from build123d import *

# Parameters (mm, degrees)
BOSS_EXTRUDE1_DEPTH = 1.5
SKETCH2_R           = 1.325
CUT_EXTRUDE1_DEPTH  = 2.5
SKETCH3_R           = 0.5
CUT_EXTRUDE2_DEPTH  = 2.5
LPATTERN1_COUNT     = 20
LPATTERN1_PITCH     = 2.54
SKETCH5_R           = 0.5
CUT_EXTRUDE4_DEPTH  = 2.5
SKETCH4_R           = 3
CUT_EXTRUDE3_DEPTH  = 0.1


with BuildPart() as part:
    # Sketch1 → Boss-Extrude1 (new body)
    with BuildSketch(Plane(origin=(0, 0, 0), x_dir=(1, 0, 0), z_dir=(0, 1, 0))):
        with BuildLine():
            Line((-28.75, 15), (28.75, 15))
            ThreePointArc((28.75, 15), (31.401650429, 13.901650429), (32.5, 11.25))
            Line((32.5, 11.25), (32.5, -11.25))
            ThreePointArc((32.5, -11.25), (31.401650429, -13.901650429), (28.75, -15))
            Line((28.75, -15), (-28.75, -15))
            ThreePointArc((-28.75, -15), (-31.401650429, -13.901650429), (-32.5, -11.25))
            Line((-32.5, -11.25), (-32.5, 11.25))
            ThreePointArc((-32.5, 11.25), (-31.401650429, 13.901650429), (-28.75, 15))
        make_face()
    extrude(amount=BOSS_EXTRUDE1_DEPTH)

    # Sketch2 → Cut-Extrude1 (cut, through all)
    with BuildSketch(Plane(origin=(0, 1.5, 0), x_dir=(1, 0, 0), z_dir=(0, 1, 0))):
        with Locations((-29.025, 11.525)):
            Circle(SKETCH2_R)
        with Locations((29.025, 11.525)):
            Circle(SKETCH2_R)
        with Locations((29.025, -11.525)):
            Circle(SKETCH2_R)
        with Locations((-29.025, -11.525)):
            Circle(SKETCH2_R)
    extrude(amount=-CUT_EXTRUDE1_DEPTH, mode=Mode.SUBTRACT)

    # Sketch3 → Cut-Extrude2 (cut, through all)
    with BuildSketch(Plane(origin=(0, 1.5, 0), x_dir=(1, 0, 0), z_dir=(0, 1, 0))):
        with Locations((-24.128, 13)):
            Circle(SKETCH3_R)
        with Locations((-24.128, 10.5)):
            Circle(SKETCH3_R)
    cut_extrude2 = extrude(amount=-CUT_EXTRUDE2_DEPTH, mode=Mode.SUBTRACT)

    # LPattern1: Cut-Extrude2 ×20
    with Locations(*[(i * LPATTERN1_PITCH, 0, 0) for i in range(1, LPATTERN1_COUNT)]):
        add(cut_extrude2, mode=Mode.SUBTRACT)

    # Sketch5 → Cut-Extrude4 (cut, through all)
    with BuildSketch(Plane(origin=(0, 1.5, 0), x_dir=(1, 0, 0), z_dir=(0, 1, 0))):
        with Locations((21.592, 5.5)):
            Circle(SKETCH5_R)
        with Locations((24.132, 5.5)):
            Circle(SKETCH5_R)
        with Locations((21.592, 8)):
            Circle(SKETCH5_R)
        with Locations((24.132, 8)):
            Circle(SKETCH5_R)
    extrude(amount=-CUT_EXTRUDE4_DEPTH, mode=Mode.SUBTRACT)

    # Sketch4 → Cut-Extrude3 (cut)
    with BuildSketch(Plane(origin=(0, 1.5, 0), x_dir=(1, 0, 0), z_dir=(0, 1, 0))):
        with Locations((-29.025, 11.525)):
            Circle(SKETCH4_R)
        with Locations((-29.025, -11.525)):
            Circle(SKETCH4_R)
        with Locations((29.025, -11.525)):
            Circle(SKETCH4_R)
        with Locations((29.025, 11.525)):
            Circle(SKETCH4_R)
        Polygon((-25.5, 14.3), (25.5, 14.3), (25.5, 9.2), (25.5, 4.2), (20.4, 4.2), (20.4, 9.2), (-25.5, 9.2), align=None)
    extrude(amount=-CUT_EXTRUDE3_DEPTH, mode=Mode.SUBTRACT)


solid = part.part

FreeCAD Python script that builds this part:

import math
import FreeCAD as App
import Part
import Sketcher

V = App.Vector


def add_polygon(sketch, points):
    """Adds a closed chain of lines whose ends are joined by coincident constraints."""
    first, n = sketch.GeometryCount, len(points)
    for a, b in zip(points, points[1:] + points[:1]):
        sketch.addGeometry(Part.LineSegment(App.Vector(*a, 0), App.Vector(*b, 0)), False)
    for i in range(n):
        sketch.addConstraint(Sketcher.Constraint("Coincident", first + i, 2, first + (i + 1) % n, 1))

doc = App.newDocument("Part")
body = doc.addObject("PartDesign::Body", "Body")

# Sketch on XZ plane
sketch1 = body.newObject("Sketcher::SketchObject", "Sketch")
sketch1.AttachmentSupport = (doc.getObject("XZ_Plane"), [""])
sketch1.MapMode = "FlatFace"
sketch1.addGeometry([
    Part.LineSegment(V(28.75, -15, 0), V(-28.75, -15, 0)),  # 0
    Part.ArcOfCircle(Part.Circle(V(-28.75, -11.25, 0), V(0, 0, 1), 3.75), math.radians(-180), math.radians(-90)),  # 1
    Part.LineSegment(V(-32.5, -11.25, 0), V(-32.5, 11.25, 0)),  # 2
    Part.ArcOfCircle(Part.Circle(V(-28.75, 11.25, 0), V(0, 0, 1), 3.75), math.radians(90), math.radians(180)),  # 3
    Part.LineSegment(V(-28.75, 15, 0), V(28.75, 15, 0)),  # 4
    Part.ArcOfCircle(Part.Circle(V(28.75, 11.25, 0), V(0, 0, 1), 3.75), math.radians(0), math.radians(90)),  # 5
    Part.LineSegment(V(32.5, 11.25, 0), V(32.5, -11.25, 0)),  # 6
    Part.ArcOfCircle(Part.Circle(V(28.75, -11.25, 0), V(0, 0, 1), 3.75), math.radians(-90), math.radians(0)),  # 7
], False)
sketch1.addConstraint([
    Sketcher.Constraint("Tangent", 0, 2, 1, 2),
    Sketcher.Constraint("Tangent", 1, 1, 2, 1),
    Sketcher.Constraint("Tangent", 2, 2, 3, 2),
    Sketcher.Constraint("Tangent", 3, 1, 4, 1),
    Sketcher.Constraint("Tangent", 4, 2, 5, 2),
    Sketcher.Constraint("Tangent", 5, 1, 6, 1),
    Sketcher.Constraint("Tangent", 6, 2, 7, 2),
    Sketcher.Constraint("Tangent", 7, 1, 0, 1),
    Sketcher.Constraint("Horizontal", 0),
    Sketcher.Constraint("Vertical", 2),
    Sketcher.Constraint("Horizontal", 4),
    Sketcher.Constraint("Vertical", 6),
    Sketcher.Constraint("Equal", 1, 3),
    Sketcher.Constraint("Equal", 3, 5),
    Sketcher.Constraint("Equal", 5, 7),
    Sketcher.Constraint("Symmetric", 1, 3, 5, 3, -1, 1),
    Sketcher.Constraint("Radius", 1, 3.75),
    Sketcher.Constraint("DistanceX", 0, 2, 0, 1, 57.5),
    Sketcher.Constraint("DistanceY", 2, 1, 2, 2, 22.5),
])
pad1 = body.newObject("PartDesign::Pad", "Pad")
pad1.Profile = sketch1
pad1.Length = 1.5
pad1.Reversed = True

# Sketch on XZ plane
sketch2 = body.newObject("Sketcher::SketchObject", "Sketch001")
sketch2.AttachmentSupport = (doc.getObject("XZ_Plane"), [""])
sketch2.MapMode = "FlatFace"
sketch2.AttachmentOffset = App.Placement(V(0, 0, -1.5), App.Rotation())
sketch2.addGeometry([
    Part.Circle(V(-29.025, -11.525, 0), V(0, 0, 1), 1.325),
    Part.Circle(V(29.025, -11.525, 0), V(0, 0, 1), 1.325),
    Part.Circle(V(29.025, 11.525, 0), V(0, 0, 1), 1.325),
    Part.Circle(V(-29.025, 11.525, 0), V(0, 0, 1), 1.325),
], False)
sketch2.addConstraint([
    Sketcher.Constraint("Equal", 0, 1),
    Sketcher.Constraint("Equal", 1, 2),
    Sketcher.Constraint("Equal", 2, 3),
    Sketcher.Constraint("Symmetric", 0, 3, 2, 3, -1, 1),
    Sketcher.Constraint("Symmetric", 1, 3, 3, 3, -1, 1),
    Sketcher.Constraint("Symmetric", 0, 3, 1, 3, -2),
    Sketcher.Constraint("Diameter", 0, 2.65),
    Sketcher.Constraint("DistanceX", 0, 3, 1, 3, 58.05),
    Sketcher.Constraint("DistanceY", 1, 3, 2, 3, 23.05),
])
pocket1 = body.newObject("PartDesign::Pocket", "Pocket")
pocket1.Profile = sketch2
pocket1.Type = "ThroughAll"
pocket1.Reversed = True

# Sketch on XZ plane
sketch3 = body.newObject("Sketcher::SketchObject", "Sketch002")
sketch3.AttachmentSupport = (doc.getObject("XZ_Plane"), [""])
sketch3.MapMode = "FlatFace"
sketch3.AttachmentOffset = App.Placement(V(0, 0, -1.5), App.Rotation())
sketch3.addGeometry([
    Part.Circle(V(-24.128, -13, 0), V(0, 0, 1), 0.5),
    Part.Circle(V(-24.128, -10.5, 0), V(0, 0, 1), 0.5),
], False)
sketch3.addConstraint([
    Sketcher.Constraint("Equal", 0, 1),
    Sketcher.Constraint("Vertical", 0, 3, 1, 3),
    Sketcher.Constraint("Diameter", 0, 1.0),
    Sketcher.Constraint("DistanceY", 0, 3, -1, 1, 13.0),
    Sketcher.Constraint("DistanceY", 1, 3, -1, 1, 10.5),
    Sketcher.Constraint("DistanceX", 0, 3, -1, 1, 24.128),
])
pocket2 = body.newObject("PartDesign::Pocket", "Pocket001")
pocket2.Profile = sketch3
pocket2.Type = "ThroughAll"
pocket2.Reversed = True
doc.recompute()

linearpattern = body.newObject("PartDesign::LinearPattern", "LinearPattern")
linearpattern.Originals = [pocket2]
linearpattern.Direction = (doc.getObject("X_Axis"), [""])
linearpattern.Mode = "offset"
linearpattern.Offset = 2.54
linearpattern.Occurrences = 20
body.Tip = linearpattern

# Sketch on XZ plane
sketch4 = body.newObject("Sketcher::SketchObject", "Sketch003")
sketch4.AttachmentSupport = (doc.getObject("XZ_Plane"), [""])
sketch4.MapMode = "FlatFace"
sketch4.AttachmentOffset = App.Placement(V(0, 0, -1.5), App.Rotation())
sketch4.addGeometry([
    Part.Circle(V(21.592, -5.5, 0), V(0, 0, 1), 0.5),
    Part.Circle(V(24.132, -5.5, 0), V(0, 0, 1), 0.5),
    Part.Circle(V(21.592, -8, 0), V(0, 0, 1), 0.5),
    Part.Circle(V(24.132, -8, 0), V(0, 0, 1), 0.5),
], False)
sketch4.addConstraint([
    Sketcher.Constraint("Equal", 0, 1),
    Sketcher.Constraint("Equal", 1, 2),
    Sketcher.Constraint("Equal", 2, 3),
    Sketcher.Constraint("Horizontal", 0, 3, 1, 3),
    Sketcher.Constraint("Horizontal", 2, 3, 3, 3),
    Sketcher.Constraint("Vertical", 0, 3, 2, 3),
    Sketcher.Constraint("Vertical", 1, 3, 3, 3),
    Sketcher.Constraint("Diameter", 0, 1.0),
    Sketcher.Constraint("DistanceY", 2, 3, -1, 1, 8.0),
    Sketcher.Constraint("DistanceY", 0, 3, -1, 1, 5.5),
    Sketcher.Constraint("DistanceX", 0, 3, 1, 3, 2.54),
    Sketcher.Constraint("DistanceX", -1, 1, 0, 3, 21.592),
])
pocket3 = body.newObject("PartDesign::Pocket", "Pocket002")
pocket3.Profile = sketch4
pocket3.Type = "ThroughAll"
pocket3.Reversed = True

# Sketch on XZ plane
sketch5 = body.newObject("Sketcher::SketchObject", "Sketch004")
sketch5.AttachmentSupport = (doc.getObject("XZ_Plane"), [""])
sketch5.MapMode = "FlatFace"
sketch5.AttachmentOffset = App.Placement(V(0, 0, -1.5), App.Rotation())
sketch5.addGeometry(Part.Circle(V(-29.025, -11.525, 0), V(0, 0, 1), 3), False)  # 0
sketch5.addGeometry(Part.Circle(V(-29.025, 11.525, 0), V(0, 0, 1), 3), False)  # 1
sketch5.addGeometry(Part.Circle(V(29.025, 11.525, 0), V(0, 0, 1), 3), False)  # 2
sketch5.addGeometry(Part.Circle(V(29.025, -11.525, 0), V(0, 0, 1), 3), False)  # 3
add_polygon(sketch5, [(25.5, -14.3), (-25.5, -14.3), (-25.5, -9.2), (20.4, -9.2), (20.4, -4.2), (25.5, -4.2)])  # lines 4-9
sketch5.addConstraint([
    Sketcher.Constraint("Horizontal", 4),
    Sketcher.Constraint("Vertical", 5),
    Sketcher.Constraint("Horizontal", 6),
    Sketcher.Constraint("Vertical", 7),
    Sketcher.Constraint("Horizontal", 8),
    Sketcher.Constraint("Vertical", 9),
    Sketcher.Constraint("Equal", 0, 1),
    Sketcher.Constraint("Equal", 1, 2),
    Sketcher.Constraint("Equal", 2, 3),
    Sketcher.Constraint("Symmetric", 0, 3, 2, 3, -1, 1),
    Sketcher.Constraint("Symmetric", 1, 3, 3, 3, -1, 1),
    Sketcher.Constraint("Symmetric", 1, 3, 2, 3, -2),
    Sketcher.Constraint("Equal", 8, 5),
    Sketcher.Constraint("Diameter", 0, 6.0),
    Sketcher.Constraint("DistanceX", 4, 2, 4, 1, 51.0),
    Sketcher.Constraint("DistanceY", 7, 1, 7, 2, 5.0),
    Sketcher.Constraint("DistanceX", 6, 1, 6, 2, 45.9),
    Sketcher.Constraint("DistanceX", 4, 2, -1, 1, 25.5),
    Sketcher.Constraint("DistanceY", 4, 2, -1, 1, 14.3),
    Sketcher.Constraint("DistanceY", 0, 3, 1, 3, 23.05),
    Sketcher.Constraint("DistanceX", 1, 3, 2, 3, 58.05),
])
pocket4 = body.newObject("PartDesign::Pocket", "Pocket003")
pocket4.Profile = sketch5
pocket4.Length = 0.1
pocket4.Reversed = True

doc.recompute()
